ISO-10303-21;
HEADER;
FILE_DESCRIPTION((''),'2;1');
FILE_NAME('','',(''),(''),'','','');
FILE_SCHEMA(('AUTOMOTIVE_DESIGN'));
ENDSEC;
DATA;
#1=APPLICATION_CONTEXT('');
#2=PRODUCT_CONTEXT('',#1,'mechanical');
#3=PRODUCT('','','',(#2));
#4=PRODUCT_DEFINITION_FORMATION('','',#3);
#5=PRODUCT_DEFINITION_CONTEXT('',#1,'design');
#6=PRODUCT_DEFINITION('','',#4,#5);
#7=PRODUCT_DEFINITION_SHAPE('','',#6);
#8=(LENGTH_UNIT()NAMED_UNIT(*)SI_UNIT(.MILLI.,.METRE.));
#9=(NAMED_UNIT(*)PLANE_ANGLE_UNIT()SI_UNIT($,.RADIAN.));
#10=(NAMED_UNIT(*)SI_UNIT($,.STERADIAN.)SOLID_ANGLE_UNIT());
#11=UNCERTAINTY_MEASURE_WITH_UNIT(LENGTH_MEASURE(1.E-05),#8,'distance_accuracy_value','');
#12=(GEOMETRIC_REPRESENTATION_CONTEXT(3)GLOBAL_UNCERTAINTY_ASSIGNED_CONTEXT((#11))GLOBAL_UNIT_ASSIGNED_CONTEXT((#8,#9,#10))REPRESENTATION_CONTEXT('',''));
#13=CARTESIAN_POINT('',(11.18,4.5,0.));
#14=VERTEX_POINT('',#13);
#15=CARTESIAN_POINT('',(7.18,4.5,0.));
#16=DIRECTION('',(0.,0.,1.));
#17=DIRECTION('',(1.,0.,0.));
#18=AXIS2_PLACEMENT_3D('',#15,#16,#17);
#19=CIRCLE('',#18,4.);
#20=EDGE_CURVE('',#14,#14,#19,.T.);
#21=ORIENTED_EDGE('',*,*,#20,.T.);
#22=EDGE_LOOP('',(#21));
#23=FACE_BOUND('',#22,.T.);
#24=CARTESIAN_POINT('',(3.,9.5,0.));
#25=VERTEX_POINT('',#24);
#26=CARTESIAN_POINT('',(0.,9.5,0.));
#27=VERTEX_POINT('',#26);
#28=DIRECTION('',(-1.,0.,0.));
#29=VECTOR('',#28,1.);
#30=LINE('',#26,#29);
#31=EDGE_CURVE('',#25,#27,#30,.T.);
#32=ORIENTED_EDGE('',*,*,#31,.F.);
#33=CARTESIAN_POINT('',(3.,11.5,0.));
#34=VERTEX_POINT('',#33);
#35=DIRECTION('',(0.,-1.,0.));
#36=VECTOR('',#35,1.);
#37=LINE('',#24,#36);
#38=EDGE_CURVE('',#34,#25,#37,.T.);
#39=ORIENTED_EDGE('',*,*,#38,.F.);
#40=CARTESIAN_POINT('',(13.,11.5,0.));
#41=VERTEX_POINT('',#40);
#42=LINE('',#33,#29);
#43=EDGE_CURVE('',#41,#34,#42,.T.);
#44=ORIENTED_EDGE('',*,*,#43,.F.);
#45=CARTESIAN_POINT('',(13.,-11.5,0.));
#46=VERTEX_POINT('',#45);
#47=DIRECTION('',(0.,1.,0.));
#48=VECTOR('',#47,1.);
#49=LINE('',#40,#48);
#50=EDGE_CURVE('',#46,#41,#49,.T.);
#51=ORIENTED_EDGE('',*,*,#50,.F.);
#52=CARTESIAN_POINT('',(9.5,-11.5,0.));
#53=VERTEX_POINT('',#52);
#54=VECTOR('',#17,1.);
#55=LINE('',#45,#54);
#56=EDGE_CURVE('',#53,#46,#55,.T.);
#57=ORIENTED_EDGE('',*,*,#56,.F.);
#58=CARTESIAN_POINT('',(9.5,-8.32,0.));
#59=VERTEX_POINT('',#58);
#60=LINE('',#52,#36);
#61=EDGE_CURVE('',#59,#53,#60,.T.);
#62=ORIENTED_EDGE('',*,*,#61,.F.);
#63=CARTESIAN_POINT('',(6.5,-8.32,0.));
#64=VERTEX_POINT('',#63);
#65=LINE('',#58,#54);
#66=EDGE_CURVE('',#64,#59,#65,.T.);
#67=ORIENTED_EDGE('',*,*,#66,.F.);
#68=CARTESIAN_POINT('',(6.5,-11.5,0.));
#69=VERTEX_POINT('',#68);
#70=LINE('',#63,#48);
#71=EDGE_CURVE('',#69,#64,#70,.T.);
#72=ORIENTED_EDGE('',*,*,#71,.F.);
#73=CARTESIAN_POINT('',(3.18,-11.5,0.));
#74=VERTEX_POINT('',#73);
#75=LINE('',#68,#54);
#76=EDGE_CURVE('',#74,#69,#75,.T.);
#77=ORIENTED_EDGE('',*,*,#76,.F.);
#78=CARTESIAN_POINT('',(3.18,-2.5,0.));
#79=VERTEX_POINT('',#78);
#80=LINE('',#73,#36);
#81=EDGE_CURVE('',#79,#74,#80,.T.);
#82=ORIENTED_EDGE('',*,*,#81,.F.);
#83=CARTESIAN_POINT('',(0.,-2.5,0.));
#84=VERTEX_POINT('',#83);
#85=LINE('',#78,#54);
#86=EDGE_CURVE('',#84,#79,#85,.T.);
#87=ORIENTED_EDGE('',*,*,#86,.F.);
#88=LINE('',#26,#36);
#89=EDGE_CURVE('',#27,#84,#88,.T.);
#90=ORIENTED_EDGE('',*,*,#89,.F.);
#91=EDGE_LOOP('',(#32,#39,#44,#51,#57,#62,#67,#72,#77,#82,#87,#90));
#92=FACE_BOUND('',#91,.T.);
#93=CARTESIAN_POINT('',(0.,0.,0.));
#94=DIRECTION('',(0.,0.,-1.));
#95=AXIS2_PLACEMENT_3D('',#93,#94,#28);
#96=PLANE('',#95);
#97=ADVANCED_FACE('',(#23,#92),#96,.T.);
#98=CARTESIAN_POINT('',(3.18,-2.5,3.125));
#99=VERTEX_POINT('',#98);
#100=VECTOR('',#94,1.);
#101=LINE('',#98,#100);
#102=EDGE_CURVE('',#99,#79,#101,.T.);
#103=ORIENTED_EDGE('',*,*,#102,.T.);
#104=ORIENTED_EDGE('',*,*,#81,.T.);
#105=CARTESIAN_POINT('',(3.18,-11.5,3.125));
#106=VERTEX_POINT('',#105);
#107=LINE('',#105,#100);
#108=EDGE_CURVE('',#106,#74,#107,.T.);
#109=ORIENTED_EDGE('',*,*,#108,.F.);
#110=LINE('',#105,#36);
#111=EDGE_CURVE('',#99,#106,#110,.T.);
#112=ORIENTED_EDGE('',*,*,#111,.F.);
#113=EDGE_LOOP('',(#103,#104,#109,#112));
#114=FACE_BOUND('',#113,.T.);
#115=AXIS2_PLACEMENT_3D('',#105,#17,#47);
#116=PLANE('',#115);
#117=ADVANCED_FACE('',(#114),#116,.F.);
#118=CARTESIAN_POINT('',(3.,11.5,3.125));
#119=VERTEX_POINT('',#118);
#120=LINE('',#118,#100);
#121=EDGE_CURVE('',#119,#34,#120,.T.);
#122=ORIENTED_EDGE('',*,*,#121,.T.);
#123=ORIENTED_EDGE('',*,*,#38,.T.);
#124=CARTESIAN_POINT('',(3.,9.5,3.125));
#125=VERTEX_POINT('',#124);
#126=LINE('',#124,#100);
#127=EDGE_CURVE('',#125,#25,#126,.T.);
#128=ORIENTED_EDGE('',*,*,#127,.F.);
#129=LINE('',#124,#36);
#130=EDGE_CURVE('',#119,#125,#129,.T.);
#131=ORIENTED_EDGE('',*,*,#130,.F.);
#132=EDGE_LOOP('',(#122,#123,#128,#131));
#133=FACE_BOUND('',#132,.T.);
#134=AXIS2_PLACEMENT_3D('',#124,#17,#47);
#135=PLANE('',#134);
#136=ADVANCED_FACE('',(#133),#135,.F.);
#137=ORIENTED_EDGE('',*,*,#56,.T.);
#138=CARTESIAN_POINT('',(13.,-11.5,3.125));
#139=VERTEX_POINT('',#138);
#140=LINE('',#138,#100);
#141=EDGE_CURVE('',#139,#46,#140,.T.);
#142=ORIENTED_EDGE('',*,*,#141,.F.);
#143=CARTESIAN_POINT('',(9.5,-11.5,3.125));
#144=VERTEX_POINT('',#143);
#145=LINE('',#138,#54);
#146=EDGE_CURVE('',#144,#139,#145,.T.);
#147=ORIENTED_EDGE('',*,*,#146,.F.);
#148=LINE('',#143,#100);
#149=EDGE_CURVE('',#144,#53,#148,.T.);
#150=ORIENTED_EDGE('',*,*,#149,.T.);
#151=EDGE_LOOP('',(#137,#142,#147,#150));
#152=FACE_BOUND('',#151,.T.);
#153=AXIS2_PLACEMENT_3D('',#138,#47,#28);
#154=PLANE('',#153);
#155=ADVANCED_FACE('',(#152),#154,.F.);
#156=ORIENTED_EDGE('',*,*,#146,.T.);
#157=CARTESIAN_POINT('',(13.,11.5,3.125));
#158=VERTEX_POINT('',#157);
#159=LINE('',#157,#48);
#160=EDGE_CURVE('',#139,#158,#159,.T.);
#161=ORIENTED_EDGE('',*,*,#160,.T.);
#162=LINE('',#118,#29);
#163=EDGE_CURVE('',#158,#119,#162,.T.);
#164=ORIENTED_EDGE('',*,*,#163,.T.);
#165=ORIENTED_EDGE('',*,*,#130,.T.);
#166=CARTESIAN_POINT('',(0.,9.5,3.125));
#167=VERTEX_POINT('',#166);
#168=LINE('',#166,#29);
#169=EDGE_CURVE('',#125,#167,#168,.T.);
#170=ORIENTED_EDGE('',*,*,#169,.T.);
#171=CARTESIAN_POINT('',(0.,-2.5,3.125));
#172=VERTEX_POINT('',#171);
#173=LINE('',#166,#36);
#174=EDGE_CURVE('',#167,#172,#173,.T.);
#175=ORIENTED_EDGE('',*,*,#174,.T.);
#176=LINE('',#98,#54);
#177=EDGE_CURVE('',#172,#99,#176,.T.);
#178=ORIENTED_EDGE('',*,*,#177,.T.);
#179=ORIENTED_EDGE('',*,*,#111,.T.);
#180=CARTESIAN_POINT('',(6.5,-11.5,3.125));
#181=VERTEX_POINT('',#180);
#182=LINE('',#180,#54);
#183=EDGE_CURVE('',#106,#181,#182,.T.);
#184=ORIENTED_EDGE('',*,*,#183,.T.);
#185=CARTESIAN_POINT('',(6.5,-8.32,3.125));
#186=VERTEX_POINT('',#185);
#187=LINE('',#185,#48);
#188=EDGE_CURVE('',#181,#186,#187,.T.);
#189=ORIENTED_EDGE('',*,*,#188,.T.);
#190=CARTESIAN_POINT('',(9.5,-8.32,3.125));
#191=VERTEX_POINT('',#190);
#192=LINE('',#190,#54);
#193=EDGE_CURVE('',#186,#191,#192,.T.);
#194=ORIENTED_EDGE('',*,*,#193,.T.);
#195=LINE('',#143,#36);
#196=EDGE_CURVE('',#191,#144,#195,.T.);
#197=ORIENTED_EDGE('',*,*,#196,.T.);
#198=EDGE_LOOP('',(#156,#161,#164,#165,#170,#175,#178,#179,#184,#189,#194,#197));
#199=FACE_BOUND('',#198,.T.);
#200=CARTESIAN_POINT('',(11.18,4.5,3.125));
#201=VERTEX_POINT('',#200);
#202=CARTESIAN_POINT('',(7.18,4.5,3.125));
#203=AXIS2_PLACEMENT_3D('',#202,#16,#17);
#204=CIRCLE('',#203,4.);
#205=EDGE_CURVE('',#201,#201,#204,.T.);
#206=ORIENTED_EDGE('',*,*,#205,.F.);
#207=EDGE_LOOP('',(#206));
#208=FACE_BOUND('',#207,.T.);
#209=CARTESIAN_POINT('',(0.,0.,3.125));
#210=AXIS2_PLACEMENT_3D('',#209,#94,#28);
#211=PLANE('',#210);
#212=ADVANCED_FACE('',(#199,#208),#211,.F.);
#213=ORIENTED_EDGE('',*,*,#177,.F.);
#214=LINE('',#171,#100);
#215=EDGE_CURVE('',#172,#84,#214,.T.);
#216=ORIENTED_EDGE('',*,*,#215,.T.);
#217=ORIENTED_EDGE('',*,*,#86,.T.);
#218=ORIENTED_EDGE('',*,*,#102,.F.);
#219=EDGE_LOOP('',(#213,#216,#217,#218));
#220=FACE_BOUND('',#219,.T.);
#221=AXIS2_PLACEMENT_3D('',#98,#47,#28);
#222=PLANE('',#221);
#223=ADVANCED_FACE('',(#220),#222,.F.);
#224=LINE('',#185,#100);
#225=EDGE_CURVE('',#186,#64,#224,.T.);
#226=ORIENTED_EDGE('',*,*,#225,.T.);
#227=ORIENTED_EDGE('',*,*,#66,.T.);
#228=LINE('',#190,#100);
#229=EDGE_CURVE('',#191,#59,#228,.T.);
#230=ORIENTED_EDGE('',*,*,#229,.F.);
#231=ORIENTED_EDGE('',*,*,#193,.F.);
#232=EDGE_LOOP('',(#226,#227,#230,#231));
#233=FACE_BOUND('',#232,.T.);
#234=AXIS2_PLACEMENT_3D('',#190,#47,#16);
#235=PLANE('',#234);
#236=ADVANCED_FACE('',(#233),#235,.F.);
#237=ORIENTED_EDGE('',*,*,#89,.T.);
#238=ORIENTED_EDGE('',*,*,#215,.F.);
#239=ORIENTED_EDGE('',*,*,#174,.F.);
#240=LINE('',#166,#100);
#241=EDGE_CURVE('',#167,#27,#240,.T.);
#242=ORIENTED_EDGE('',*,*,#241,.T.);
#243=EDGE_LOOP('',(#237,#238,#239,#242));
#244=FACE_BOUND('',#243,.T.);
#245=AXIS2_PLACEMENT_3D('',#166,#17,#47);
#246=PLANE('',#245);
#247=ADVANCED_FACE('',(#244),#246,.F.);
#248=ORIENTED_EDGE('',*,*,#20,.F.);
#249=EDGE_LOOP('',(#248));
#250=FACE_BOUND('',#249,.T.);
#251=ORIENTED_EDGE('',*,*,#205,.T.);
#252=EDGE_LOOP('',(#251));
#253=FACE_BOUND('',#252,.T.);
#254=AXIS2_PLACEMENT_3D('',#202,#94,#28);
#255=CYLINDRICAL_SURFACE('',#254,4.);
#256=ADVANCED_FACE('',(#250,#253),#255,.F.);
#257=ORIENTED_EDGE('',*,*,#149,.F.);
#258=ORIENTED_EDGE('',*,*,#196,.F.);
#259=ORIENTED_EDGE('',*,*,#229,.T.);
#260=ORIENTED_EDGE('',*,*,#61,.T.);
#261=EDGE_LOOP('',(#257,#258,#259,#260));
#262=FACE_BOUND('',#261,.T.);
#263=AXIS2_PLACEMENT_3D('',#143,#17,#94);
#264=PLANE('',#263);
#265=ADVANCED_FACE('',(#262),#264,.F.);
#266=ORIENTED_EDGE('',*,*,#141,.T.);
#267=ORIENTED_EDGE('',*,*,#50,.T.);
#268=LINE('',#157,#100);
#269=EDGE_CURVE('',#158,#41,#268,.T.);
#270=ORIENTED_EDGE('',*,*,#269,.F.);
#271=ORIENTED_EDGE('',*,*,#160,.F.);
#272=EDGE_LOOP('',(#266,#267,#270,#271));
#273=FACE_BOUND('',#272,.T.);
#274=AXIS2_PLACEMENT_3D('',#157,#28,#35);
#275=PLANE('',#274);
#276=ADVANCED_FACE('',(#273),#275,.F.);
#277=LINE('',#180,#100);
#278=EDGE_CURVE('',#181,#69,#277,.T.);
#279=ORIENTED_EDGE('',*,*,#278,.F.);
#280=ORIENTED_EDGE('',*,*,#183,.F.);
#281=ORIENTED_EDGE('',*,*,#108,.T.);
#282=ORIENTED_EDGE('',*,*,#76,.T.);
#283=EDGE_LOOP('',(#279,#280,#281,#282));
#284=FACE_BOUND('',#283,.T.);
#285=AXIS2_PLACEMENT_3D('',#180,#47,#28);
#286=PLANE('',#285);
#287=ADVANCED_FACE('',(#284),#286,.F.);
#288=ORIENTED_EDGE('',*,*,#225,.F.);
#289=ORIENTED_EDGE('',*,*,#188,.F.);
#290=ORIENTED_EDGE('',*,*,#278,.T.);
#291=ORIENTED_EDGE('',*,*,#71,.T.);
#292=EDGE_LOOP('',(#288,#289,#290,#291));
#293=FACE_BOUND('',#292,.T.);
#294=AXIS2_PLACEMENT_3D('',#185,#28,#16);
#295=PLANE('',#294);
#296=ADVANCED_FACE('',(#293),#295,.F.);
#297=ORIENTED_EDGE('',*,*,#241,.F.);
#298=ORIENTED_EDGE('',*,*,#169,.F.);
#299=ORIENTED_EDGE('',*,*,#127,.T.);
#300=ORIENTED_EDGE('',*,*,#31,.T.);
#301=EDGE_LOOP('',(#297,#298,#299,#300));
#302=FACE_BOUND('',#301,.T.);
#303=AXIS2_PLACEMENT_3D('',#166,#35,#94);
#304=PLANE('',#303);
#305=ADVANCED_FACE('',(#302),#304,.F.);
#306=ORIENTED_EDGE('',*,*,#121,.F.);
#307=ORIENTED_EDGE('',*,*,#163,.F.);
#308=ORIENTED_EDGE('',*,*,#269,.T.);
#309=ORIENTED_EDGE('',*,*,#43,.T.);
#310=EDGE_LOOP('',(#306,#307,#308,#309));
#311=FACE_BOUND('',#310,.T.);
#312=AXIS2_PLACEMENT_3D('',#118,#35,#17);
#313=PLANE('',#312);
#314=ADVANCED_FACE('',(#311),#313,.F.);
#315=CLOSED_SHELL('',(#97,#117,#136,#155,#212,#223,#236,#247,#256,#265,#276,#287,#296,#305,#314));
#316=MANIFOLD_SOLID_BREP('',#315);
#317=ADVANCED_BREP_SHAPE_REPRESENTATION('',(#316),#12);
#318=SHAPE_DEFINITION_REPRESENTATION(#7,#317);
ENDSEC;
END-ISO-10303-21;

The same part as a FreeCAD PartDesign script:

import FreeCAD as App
import Part
import Sketcher
from FreeCAD import Vector

doc = App.newDocument("Part")
params = doc.addObject("Spreadsheet::Sheet", "Params")
for row, (alias, value) in enumerate([
    ("sketch1_diameter", "8 mm"),
    ("sketch1_width", "3 mm"),
    ("sketch1_width2", "10 mm"),
    ("sketch1_height", "12 mm"),
    ("sketch1_height2", "9 mm"),
    ("pad1_length", "3.125 mm"),
], start=1):
    params.set(f"A{row}", alias)
    params.set(f"B{row}", "=" + value)
    params.setAlias(f"B{row}", alias)

body = doc.addObject("PartDesign::Body", "Body")

sketch1 = body.newObject("Sketcher::SketchObject", "Sketch")
sketch1.AttachmentSupport = (doc.getObject("XY_Plane"), [""])
sketch1.MapMode = "FlatFace"
sketch1.addGeometry([
    Part.LineSegment(Vector(3, 9.5, 0), Vector(0, 9.5, 0)),
    Part.LineSegment(Vector(0, 9.5, 0), Vector(0, -2.5, 0)),
    Part.LineSegment(Vector(0, -2.5, 0), Vector(3.2, -2.5, 0)),
    Part.LineSegment(Vector(3.2, -2.5, 0), Vector(3.2, -11.5, 0)),
    Part.LineSegment(Vector(3.2, -11.5, 0), Vector(6.5, -11.5, 0)),
    Part.LineSegment(Vector(6.5, -11.5, 0), Vector(6.5, -8.3, 0)),
    Part.LineSegment(Vector(6.5, -8.3, 0), Vector(9.5, -8.3, 0)),
    Part.LineSegment(Vector(9.5, -8.3, 0), Vector(9.5, -11.5, 0)),
    Part.LineSegment(Vector(9.5, -11.5, 0), Vector(13, -11.5, 0)),
    Part.LineSegment(Vector(13, -11.5, 0), Vector(13, 11.5, 0)),
    Part.LineSegment(Vector(13, 11.5, 0), Vector(3, 11.5, 0)),
    Part.LineSegment(Vector(3, 11.5, 0), Vector(3, 9.5, 0)),
    Part.Circle(Vector(7.2, 4.5, 0), Vector(0, 0, 1), 4),
], False)
sketch1.addConstraint([
    Sketcher.Constraint("Coincident", 0, 2, 1, 1),
    Sketcher.Constraint("Coincident", 1, 2, 2, 1),
    Sketcher.Constraint("Coincident", 2, 2, 3, 1),
    Sketcher.Constraint("Coincident", 3, 2, 4, 1),
    Sketcher.Constraint("Coincident", 4, 2, 5, 1),
    Sketcher.Constraint("Coincident", 5, 2, 6, 1),
    Sketcher.Constraint("Coincident", 6, 2, 7, 1),
    Sketcher.Constraint("Coincident", 7, 2, 8, 1),
    Sketcher.Constraint("Coincident", 8, 2, 9, 1),
    Sketcher.Constraint("Coincident", 9, 2, 10, 1),
    Sketcher.Constraint("Coincident", 10, 2, 11, 1),
    Sketcher.Constraint("Coincident", 11, 2, 0, 1),
    Sketcher.Constraint("Horizontal", 0),
    Sketcher.Constraint("Vertical", 1),
    Sketcher.Constraint("Horizontal", 2),
    Sketcher.Constraint("Vertical", 3),
    Sketcher.Constraint("Horizontal", 4),
    Sketcher.Constraint("Vertical", 5),
    Sketcher.Constraint("Horizontal", 6),
    Sketcher.Constraint("Vertical", 7),
    Sketcher.Constraint("Horizontal", 8),
    Sketcher.Constraint("Vertical", 9),
    Sketcher.Constraint("Horizontal", 10),
    Sketcher.Constraint("Vertical", 11),
    Sketcher.Constraint("PointOnObject", 0, 2, -2),
    Sketcher.Constraint("Horizontal", 4, 2, 7, 2),
    Sketcher.Constraint("Equal", 0, 6),
    Sketcher.Constraint("Equal", 2, 5),
    Sketcher.Constraint("Diameter", 12, 8.0),
    Sketcher.Constraint("DistanceX", 0, 2, 0, 1, 3.0),
    Sketcher.Constraint("DistanceX", 10, 2, 10, 1, 10.0),
    Sketcher.Constraint("DistanceY", 1, 2, 1, 1, 12.0),
    Sketcher.Constraint("DistanceY", 3, 2, 3, 1, 9.0),
    Sketcher.Constraint("DistanceY", 9, 1, 9, 2, 23.0),
    Sketcher.Constraint("DistanceX", 8, 1, 8, 2, 3.5),
    Sketcher.Constraint("DistanceY", 12, 3, 0, 2, 5.0),
    Sketcher.Constraint("DistanceX", 2, 2, 12, 3, 4.0),
    Sketcher.Constraint("DistanceX", 2, 1, 2, 2, 3.18),
    Sketcher.Constraint("DistanceY", -1, 1, 12, 3, 4.5),
])
sketch1.setExpression("Constraints[28]", "Params.sketch1_diameter")
sketch1.setExpression("Constraints[29]", "Params.sketch1_width")
sketch1.setExpression("Constraints[30]", "Params.sketch1_width2")
sketch1.setExpression("Constraints[31]", "Params.sketch1_height")
sketch1.setExpression("Constraints[32]", "Params.sketch1_height2")
pad1 = body.newObject("PartDesign::Pad", "Pad")
pad1.Profile = sketch1
pad1.setExpression("Length", "Params.pad1_length")

doc.recompute()
